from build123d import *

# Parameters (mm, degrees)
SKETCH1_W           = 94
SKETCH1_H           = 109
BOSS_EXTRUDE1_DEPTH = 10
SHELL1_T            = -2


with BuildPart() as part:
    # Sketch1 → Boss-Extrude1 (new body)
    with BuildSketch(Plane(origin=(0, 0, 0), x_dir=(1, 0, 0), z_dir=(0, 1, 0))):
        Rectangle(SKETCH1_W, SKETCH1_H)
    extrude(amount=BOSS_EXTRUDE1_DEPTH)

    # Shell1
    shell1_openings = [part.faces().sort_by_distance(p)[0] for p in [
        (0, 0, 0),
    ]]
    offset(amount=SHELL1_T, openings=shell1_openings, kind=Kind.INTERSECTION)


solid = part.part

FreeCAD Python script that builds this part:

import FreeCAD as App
import Part
import Sketcher

V = App.Vector
Q = App.Units.Quantity


def faces_at(feature, points):
    """Names of the faces that lie closest to the given points."""
    faces = feature.Shape.Faces
    near = lambda p: min(range(len(faces)), key=lambda i: faces[i].distToShape(Part.Vertex(*p))[0])
    return sorted({f"Face{near(p) + 1}" for p in points})


def add_polygon(sketch, points):
    """Adds a closed chain of lines whose ends are joined by coincident constraints."""
    first, n = sketch.GeometryCount, len(points)
    for a, b in zip(points, points[1:] + points[:1]):
        sketch.addGeometry(Part.LineSegment(App.Vector(*a, 0), App.Vector(*b, 0)), False)
    for i in range(n):
        sketch.addConstraint(Sketcher.Constraint("Coincident", first + i, 2, first + (i + 1) % n, 1))

doc = App.newDocument("Part")
body = doc.addObject("PartDesign::Body", "Body")

# Sketch on XZ plane
sketch1 = doc.addObject("Sketcher::SketchObject", "Sketch")
body.addObject(sketch1)
sketch1.AttachmentSupport = (doc.XZ_Plane, [""])
sketch1.MapMode = "FlatFace"
add_polygon(sketch1, [(-47, -54), (-47, 54), (47, 54), (47, -54)])  # lines 0-3
sketch1.addConstraint(Sketcher.Constraint("Vertical", 0))
sketch1.addConstraint(Sketcher.Constraint("Horizontal", 1))
sketch1.addConstraint(Sketcher.Constraint("Vertical", 2))
sketch1.addConstraint(Sketcher.Constraint("Horizontal", 3))
sketch1.addConstraint(Sketcher.Constraint("Symmetric", 0, 2, 2, 2, -1, 1))
sketch1.addConstraint(Sketcher.Constraint("DistanceX", 1, 1, 1, 2, Q("94 mm")))
sketch1.addConstraint(Sketcher.Constraint("DistanceY", 0, 1, 0, 2, Q("109 mm")))
pad1 = doc.addObject("PartDesign::Pad", "Pad")
body.addObject(pad1)
pad1.Profile = sketch1
pad1.Length = 10
pad1.Reversed = True
doc.recompute()

thickness = doc.addObject("PartDesign::Thickness", "Thickness")
body.addObject(thickness)
thickness.Base = (pad1, faces_at(pad1, [(0, 0, 0)]))
thickness.Value = 2
thickness.Reversed = True
thickness.Join = "Intersection"

doc.recompute()
